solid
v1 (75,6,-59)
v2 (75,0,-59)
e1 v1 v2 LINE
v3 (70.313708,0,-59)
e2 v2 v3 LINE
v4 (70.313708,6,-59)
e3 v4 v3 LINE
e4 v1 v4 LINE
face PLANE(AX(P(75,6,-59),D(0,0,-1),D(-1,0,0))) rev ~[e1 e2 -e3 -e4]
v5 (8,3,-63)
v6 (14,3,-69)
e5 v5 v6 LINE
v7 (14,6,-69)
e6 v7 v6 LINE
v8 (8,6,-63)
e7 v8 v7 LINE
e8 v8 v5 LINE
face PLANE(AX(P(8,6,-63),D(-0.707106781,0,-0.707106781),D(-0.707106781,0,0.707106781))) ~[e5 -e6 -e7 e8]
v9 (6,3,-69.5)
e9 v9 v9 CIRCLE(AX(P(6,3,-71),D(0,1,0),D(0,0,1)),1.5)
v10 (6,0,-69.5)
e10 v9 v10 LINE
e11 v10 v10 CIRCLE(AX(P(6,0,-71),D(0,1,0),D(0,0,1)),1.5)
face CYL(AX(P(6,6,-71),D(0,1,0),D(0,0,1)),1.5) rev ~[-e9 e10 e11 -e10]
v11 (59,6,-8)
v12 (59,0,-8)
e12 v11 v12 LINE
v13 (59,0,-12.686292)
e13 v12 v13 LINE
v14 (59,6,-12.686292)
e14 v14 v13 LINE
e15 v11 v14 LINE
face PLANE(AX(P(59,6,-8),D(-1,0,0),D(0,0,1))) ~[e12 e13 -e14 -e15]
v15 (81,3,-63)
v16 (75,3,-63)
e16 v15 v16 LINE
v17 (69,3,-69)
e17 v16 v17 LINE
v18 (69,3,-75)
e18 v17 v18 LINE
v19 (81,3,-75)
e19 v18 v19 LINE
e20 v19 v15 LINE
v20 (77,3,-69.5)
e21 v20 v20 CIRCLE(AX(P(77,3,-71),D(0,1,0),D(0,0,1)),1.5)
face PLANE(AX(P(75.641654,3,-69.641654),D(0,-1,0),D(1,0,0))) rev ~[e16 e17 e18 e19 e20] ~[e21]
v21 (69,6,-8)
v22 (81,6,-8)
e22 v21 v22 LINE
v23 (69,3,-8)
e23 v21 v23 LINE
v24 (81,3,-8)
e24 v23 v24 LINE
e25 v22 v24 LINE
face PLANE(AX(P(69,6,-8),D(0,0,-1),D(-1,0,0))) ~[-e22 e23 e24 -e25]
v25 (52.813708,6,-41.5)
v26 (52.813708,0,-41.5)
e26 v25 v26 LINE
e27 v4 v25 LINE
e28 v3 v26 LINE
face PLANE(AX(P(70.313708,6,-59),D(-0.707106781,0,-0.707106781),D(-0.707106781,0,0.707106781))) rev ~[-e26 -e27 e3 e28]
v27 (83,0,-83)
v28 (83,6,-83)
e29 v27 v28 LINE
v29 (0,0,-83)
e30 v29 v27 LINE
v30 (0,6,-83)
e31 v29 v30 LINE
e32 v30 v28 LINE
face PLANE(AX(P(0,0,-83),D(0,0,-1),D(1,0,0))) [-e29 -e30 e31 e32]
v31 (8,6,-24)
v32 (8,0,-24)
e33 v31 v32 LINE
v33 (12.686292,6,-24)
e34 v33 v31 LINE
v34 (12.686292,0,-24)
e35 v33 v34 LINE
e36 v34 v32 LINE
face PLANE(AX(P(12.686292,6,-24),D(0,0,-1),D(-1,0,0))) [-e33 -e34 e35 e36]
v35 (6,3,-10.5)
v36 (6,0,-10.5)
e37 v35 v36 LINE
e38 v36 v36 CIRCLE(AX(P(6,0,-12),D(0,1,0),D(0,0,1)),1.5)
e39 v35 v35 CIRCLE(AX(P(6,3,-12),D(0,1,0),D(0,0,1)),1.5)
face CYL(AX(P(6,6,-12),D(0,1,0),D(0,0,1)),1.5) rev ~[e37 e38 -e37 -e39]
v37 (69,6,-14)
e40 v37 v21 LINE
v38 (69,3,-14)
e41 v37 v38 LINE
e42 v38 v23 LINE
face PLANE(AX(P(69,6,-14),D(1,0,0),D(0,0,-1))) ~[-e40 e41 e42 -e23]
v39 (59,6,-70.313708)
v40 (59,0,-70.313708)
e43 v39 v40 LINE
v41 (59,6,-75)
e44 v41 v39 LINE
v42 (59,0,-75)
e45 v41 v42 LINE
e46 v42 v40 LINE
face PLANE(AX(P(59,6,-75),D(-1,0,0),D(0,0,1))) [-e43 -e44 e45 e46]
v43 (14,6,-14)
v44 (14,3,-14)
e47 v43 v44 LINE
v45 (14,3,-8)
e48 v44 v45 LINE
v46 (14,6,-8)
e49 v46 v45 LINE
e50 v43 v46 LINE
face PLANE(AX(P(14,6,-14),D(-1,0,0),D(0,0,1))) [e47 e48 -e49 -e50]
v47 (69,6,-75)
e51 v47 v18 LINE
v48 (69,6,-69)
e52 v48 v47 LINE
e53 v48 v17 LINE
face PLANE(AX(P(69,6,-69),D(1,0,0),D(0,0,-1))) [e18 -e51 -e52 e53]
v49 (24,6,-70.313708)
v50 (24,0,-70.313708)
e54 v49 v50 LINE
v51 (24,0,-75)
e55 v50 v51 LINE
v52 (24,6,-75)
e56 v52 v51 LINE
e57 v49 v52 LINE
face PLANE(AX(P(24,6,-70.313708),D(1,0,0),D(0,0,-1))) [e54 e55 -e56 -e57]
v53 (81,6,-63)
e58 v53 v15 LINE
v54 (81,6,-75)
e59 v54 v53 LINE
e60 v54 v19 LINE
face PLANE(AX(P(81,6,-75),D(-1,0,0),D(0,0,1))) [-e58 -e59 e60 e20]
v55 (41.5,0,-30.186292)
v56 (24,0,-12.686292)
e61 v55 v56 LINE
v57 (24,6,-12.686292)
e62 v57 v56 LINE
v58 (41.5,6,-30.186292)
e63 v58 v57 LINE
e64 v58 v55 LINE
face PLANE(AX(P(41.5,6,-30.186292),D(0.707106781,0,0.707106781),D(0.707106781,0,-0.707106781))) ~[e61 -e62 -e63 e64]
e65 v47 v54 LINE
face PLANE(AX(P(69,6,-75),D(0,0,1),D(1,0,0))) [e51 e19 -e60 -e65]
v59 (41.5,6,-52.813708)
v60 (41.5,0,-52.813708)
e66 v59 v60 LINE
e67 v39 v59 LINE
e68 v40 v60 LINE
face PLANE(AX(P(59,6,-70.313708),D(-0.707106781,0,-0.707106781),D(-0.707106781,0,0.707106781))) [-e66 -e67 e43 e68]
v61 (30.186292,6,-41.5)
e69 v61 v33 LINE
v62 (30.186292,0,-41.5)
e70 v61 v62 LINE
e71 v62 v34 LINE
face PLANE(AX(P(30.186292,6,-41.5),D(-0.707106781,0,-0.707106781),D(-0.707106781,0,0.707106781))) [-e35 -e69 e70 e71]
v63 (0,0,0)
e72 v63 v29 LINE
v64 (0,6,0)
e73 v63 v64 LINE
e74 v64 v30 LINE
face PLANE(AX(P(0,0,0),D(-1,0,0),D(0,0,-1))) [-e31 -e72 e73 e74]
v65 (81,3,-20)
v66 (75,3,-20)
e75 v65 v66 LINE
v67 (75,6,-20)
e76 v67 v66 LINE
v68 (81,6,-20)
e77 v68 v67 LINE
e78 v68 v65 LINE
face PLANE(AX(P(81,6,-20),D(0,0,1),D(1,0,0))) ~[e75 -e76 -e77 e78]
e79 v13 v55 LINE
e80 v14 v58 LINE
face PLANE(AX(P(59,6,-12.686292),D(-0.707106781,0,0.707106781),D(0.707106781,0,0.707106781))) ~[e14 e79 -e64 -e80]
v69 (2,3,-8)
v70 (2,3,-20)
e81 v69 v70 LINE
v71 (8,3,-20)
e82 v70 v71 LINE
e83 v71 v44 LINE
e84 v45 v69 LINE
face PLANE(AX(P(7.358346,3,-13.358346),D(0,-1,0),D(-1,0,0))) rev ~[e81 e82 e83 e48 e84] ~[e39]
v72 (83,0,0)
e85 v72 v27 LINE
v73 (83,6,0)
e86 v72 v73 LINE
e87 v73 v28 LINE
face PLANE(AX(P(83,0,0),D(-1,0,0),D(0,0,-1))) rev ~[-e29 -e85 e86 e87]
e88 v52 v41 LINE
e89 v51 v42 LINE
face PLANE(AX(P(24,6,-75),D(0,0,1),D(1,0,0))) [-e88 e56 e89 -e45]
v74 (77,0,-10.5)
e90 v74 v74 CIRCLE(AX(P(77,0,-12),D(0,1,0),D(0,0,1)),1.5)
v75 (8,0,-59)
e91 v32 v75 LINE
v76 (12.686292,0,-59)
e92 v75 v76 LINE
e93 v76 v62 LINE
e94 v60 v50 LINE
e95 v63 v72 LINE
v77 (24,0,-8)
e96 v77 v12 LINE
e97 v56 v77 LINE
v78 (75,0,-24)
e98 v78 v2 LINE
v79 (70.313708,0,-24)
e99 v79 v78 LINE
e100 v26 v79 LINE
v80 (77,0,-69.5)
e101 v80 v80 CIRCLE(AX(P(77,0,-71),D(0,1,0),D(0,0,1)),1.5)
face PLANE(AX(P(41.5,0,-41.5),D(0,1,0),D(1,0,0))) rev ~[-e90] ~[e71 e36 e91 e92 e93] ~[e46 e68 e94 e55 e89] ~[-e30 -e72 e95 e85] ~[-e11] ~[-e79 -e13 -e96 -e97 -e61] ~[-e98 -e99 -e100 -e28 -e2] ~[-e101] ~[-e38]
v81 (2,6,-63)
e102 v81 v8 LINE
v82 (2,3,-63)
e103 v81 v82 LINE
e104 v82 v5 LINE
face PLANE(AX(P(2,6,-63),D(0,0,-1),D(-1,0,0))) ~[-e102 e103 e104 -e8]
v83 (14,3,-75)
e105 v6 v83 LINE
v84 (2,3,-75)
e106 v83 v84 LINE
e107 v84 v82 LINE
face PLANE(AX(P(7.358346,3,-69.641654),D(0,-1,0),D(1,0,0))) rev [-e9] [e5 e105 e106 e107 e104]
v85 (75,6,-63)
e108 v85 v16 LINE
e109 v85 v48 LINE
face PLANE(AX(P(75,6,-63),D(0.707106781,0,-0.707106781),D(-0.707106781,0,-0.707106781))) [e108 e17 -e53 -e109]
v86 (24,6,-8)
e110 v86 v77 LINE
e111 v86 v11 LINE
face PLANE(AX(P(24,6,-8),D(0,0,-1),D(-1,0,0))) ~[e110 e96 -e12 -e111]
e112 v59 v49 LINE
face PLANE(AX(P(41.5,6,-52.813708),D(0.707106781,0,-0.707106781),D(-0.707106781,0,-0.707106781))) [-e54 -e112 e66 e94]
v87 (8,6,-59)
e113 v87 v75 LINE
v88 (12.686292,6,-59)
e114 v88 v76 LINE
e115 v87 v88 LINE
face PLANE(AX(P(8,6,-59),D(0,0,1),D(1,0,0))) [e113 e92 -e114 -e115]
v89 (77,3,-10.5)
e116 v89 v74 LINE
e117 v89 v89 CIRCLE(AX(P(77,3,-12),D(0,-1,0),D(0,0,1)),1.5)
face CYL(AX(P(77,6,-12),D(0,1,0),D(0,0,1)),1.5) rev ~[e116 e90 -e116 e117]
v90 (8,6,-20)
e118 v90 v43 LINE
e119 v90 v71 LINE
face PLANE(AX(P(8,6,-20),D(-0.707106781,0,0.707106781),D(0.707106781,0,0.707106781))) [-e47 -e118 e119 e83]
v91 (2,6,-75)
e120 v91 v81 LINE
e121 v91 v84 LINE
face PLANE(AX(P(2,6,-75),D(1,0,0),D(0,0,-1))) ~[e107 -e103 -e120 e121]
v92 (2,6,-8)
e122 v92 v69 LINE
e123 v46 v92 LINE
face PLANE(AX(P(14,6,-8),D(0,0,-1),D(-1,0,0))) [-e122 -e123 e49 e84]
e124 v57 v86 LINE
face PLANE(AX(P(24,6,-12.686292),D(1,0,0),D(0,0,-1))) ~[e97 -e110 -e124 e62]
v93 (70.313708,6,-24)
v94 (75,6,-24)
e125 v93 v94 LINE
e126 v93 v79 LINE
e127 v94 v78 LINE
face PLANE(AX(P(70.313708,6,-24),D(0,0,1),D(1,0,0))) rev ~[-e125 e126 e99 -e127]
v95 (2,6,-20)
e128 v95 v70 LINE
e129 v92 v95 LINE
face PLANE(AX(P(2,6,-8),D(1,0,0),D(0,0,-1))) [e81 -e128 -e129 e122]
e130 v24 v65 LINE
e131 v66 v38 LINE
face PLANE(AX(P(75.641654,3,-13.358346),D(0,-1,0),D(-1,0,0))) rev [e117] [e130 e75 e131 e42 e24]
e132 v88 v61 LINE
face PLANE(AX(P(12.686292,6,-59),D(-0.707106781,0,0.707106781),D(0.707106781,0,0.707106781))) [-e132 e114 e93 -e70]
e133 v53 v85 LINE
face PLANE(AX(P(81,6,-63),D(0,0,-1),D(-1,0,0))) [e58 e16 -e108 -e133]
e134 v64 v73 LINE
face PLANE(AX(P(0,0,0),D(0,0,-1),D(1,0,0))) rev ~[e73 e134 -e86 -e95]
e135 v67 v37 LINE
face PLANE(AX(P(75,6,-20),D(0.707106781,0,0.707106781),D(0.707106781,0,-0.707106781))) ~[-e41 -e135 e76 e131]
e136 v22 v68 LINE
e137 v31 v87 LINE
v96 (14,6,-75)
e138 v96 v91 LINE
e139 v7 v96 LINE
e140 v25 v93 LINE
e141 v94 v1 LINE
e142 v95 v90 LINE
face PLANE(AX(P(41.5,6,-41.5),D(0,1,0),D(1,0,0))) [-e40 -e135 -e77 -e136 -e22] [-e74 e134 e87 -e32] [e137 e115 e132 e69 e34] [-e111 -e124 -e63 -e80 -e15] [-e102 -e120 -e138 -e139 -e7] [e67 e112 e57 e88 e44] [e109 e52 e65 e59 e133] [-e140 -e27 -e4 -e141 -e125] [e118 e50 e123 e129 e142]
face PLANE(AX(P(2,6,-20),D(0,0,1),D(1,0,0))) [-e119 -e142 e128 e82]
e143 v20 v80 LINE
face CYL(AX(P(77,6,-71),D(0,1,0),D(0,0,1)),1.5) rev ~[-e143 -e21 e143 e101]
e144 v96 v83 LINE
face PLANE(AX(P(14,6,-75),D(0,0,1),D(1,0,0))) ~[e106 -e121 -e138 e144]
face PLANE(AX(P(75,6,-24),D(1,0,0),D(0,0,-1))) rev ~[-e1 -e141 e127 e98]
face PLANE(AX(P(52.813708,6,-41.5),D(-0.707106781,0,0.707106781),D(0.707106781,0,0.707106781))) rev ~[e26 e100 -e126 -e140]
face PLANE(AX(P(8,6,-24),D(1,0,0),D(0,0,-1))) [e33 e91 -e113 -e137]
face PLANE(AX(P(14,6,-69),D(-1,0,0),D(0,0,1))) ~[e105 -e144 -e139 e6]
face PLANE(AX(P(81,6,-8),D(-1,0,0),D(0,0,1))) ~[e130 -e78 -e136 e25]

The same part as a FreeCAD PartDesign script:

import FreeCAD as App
import Part
import Sketcher
from FreeCAD import Vector
Q = App.Units.Quantity

doc = App.newDocument("Part")
body = doc.addObject("PartDesign::Body", "Body")

# Sketch on XZ plane
sketch1 = body.newObject("Sketcher::SketchObject", "Sketch")
sketch1.AttachmentSupport = (doc.getObject("XZ_Plane"), [""])
sketch1.MapMode = "FlatFace"
sketch1.addGeometry([
    Part.LineSegment(Vector(0, -83, 0), Vector(0, 0, 0)),
    Part.LineSegment(Vector(0, 0, 0), Vector(83, 0, 0)),
    Part.LineSegment(Vector(83, 0, 0), Vector(83, -83, 0)),
    Part.LineSegment(Vector(83, -83, 0), Vector(0, -83, 0)),
], False)
sketch1.addConstraint([
    Sketcher.Constraint("Coincident", 0, 2, 1, 1),
    Sketcher.Constraint("Coincident", 1, 2, 2, 1),
    Sketcher.Constraint("Coincident", 2, 2, 3, 1),
    Sketcher.Constraint("Coincident", 3, 2, 0, 1),
    Sketcher.Constraint("Vertical", 0),
    Sketcher.Constraint("Horizontal", 1),
    Sketcher.Constraint("Vertical", 2),
    Sketcher.Constraint("Horizontal", 3),
    Sketcher.Constraint("Coincident", 0, 2, -1, 1),
    Sketcher.Constraint("Equal", 3, 0),
    Sketcher.Constraint("DistanceX", 1, 1, 1, 2, Q("83 mm")),
])
pad1 = body.newObject("PartDesign::Pad", "Pad")
pad1.Profile = sketch1
pad1.Length = 6
pad1.Reversed = True

# Sketch on XZ plane
sketch2 = body.newObject("Sketcher::SketchObject", "Sketch001")
sketch2.AttachmentSupport = (doc.getObject("XZ_Plane"), [""])
sketch2.MapMode = "FlatFace"
sketch2.AttachmentOffset = App.Placement(Vector(0, 0, -6), App.Rotation())
sketch2.addGeometry([
    Part.Circle(Vector(6, -71, 0), Vector(0, 0, 1), 1.5),
    Part.Circle(Vector(6, -12, 0), Vector(0, 0, 1), 1.5),
    Part.Circle(Vector(77, -12, 0), Vector(0, 0, 1), 1.5),
    Part.Circle(Vector(77, -71, 0), Vector(0, 0, 1), 1.5),
], False)
sketch2.addConstraint([
    Sketcher.Constraint("Equal", 0, 1),
    Sketcher.Constraint("Equal", 1, 2),
    Sketcher.Constraint("Equal", 2, 3),
    Sketcher.Constraint("Horizontal", 1, 3, 2, 3),
    Sketcher.Constraint("Horizontal", 0, 3, 3, 3),
    Sketcher.Constraint("Vertical", 0, 3, 1, 3),
    Sketcher.Constraint("Vertical", 2, 3, 3, 3),
    Sketcher.Constraint("Diameter", 0, Q("3 mm")),
    Sketcher.Constraint("DistanceX", -1, 1, 0, 3, Q("6 mm")),
    Sketcher.Constraint("DistanceY", 0, 3, -1, 1, Q("71 mm")),
    Sketcher.Constraint("DistanceY", 1, 3, -1, 1, Q("12 mm")),
    Sketcher.Constraint("DistanceX", -1, 1, 2, 3, Q("77 mm")),
])
pocket1 = body.newObject("PartDesign::Pocket", "Pocket")
pocket1.Profile = sketch2
pocket1.Type = "ThroughAll"
pocket1.Reversed = True

# Sketch on XZ plane
sketch3 = body.newObject("Sketcher::SketchObject", "Sketch002")
sketch3.AttachmentSupport = (doc.getObject("XZ_Plane"), [""])
sketch3.MapMode = "FlatFace"
sketch3.AttachmentOffset = App.Placement(Vector(0, 0, -6), App.Rotation())
sketch3.addGeometry([
    Part.LineSegment(Vector(59, -75, 0), Vector(24, -75, 0)),  # 0
    Part.LineSegment(Vector(24, -75, 0), Vector(24, -70.3, 0)),  # 1
    Part.LineSegment(Vector(24, -70.3, 0), Vector(41.5, -52.8, 0)),  # 2
    Part.LineSegment(Vector(41.5, -52.8, 0), Vector(59, -70.3, 0)),  # 3
    Part.LineSegment(Vector(59, -70.3, 0), Vector(59, -75, 0)),  # 4
], False)
sketch3.addConstraint([
    Sketcher.Constraint("Coincident", 0, 2, 1, 1),
    Sketcher.Constraint("Coincident", 1, 2, 2, 1),
    Sketcher.Constraint("Coincident", 2, 2, 3, 1),
    Sketcher.Constraint("Coincident", 3, 2, 4, 1),
    Sketcher.Constraint("Coincident", 4, 2, 0, 1),
    Sketcher.Constraint("Horizontal", 0),
    Sketcher.Constraint("Vertical", 1),
    Sketcher.Constraint("Vertical", 4),
    Sketcher.Constraint("Perpendicular", 2, 3),
    Sketcher.Constraint("Horizontal", 1, 2, 3, 2),
    Sketcher.Constraint("Equal", 2, 3),
    Sketcher.Constraint("DistanceX", 0, 2, 0, 1, Q("35 mm")),
    Sketcher.Constraint("DistanceX", -1, 1, 0, 2, Q("24 mm")),
    Sketcher.Constraint("DistanceY", 0, 2, -1, 1, Q("75 mm")),
    Sketcher.Constraint("DistanceY", 1, 1, 1, 2, Q("4.686292 mm")),
])
pocket2 = body.newObject("PartDesign::Pocket", "Pocket001")
pocket2.Profile = sketch3
pocket2.Type = "ThroughAll"
pocket2.Reversed = True
doc.recompute()

datumplane = body.newObject("PartDesign::Plane", "DatumPlane")
datumplane.AttachmentSupport = (doc.getObject("XY_Plane"), [""])
datumplane.MapMode = "FlatFace"
datumplane.AttachmentOffset = App.Placement(Vector(0, 0, -41.5), App.Rotation())
mirrored = body.newObject("PartDesign::Mirrored", "Mirrored")
mirrored.Originals = [pocket2]
mirrored.MirrorPlane = (datumplane, [""])
body.Tip = mirrored
doc.recompute()

datumline = body.newObject("PartDesign::Line", "DatumLine")
datumline.Placement = App.Placement(Vector(41.5, 0, -41.5), App.Rotation(Vector(0, 0, 1), Vector(0, 1, 0)))
polarpattern = body.newObject("PartDesign::PolarPattern", "PolarPattern")
polarpattern.Originals = [pocket2]
polarpattern.Axis = (datumline, [""])
polarpattern.Angle = 180
polarpattern.Occurrences = 3
body.Tip = polarpattern

# Sketch on XZ plane
sketch4 = body.newObject("Sketcher::SketchObject", "Sketch003")
sketch4.AttachmentSupport = (doc.getObject("XZ_Plane"), [""])
sketch4.MapMode = "FlatFace"
sketch4.AttachmentOffset = App.Placement(Vector(0, 0, -6), App.Rotation())
sketch4.addGeometry([
    Part.LineSegment(Vector(75, -24, 0), Vector(75, -59, 0)),  # 0
    Part.LineSegment(Vector(75, -59, 0), Vector(70.3, -59, 0)),  # 1
    Part.LineSegment(Vector(70.3, -59, 0), Vector(52.8, -41.5, 0)),  # 2
    Part.LineSegment(Vector(52.8, -41.5, 0), Vector(70.3, -24, 0)),  # 3
    Part.LineSegment(Vector(70.3, -24, 0), Vector(75, -24, 0)),  # 4
], False)
sketch4.addConstraint([
    Sketcher.Constraint("Coincident", 0, 2, 1, 1),
    Sketcher.Constraint("Coincident", 1, 2, 2, 1),
    Sketcher.Constraint("Coincident", 2, 2, 3, 1),
    Sketcher.Constraint("Coincident", 3, 2, 4, 1),
    Sketcher.Constraint("Coincident", 4, 2, 0, 1),
    Sketcher.Constraint("Vertical", 0),
    Sketcher.Constraint("Horizontal", 1),
    Sketcher.Constraint("Horizontal", 4),
    Sketcher.Constraint("Perpendicular", 2, 3),
    Sketcher.Constraint("Vertical", 1, 2, 3, 2),
    Sketcher.Constraint("Equal", 2, 3),
    Sketcher.Constraint("DistanceY", 0, 2, 0, 1, Q("35 mm")),
    Sketcher.Constraint("DistanceX", -1, 1, 0, 2, Q("75 mm")),
    Sketcher.Constraint("DistanceY", 0, 2, -1, 1, Q("59 mm")),
    Sketcher.Constraint("DistanceX", 1, 2, 1, 1, Q("4.686292 mm")),
])
pocket3 = body.newObject("PartDesign::Pocket", "Pocket002")
pocket3.Profile = sketch4
pocket3.Type = "ThroughAll"
pocket3.Reversed = True

# Sketch on XZ plane
sketch5 = body.newObject("Sketcher::SketchObject", "Sketch004")
sketch5.AttachmentSupport = (doc.getObject("XZ_Plane"), [""])
sketch5.MapMode = "FlatFace"
sketch5.AttachmentOffset = App.Placement(Vector(0, 0, -6), App.Rotation())
sketch5.addGeometry([
    Part.LineSegment(Vector(59, -75, 0), Vector(24, -75, 0)),  # 0
    Part.LineSegment(Vector(24, -75, 0), Vector(24, -70.3, 0)),  # 1
    Part.LineSegment(Vector(24, -70.3, 0), Vector(41.5, -52.8, 0)),  # 2
    Part.LineSegment(Vector(41.5, -52.8, 0), Vector(59, -70.3, 0)),  # 3
    Part.LineSegment(Vector(59, -70.3, 0), Vector(59, -75, 0)),  # 4
], False)
sketch5.addConstraint([
    Sketcher.Constraint("Coincident", 0, 2, 1, 1),
    Sketcher.Constraint("Coincident", 1, 2, 2, 1),
    Sketcher.Constraint("Coincident", 2, 2, 3, 1),
    Sketcher.Constraint("Coincident", 3, 2, 4, 1),
    Sketcher.Constraint("Coincident", 4, 2, 0, 1),
    Sketcher.Constraint("Horizontal", 0),
    Sketcher.Constraint("Vertical", 1),
    Sketcher.Constraint("Vertical", 4),
    Sketcher.Constraint("Perpendicular", 2, 3),
    Sketcher.Constraint("Horizontal", 1, 2, 3, 2),
    Sketcher.Constraint("Equal", 2, 3),
    Sketcher.Constraint("DistanceX", 0, 2, 0, 1, Q("35 mm")),
    Sketcher.Constraint("DistanceX", -1, 1, 0, 2, Q("24 mm")),
    Sketcher.Constraint("DistanceY", 0, 2, -1, 1, Q("75 mm")),
    Sketcher.Constraint("DistanceY", 1, 1, 1, 2, Q("4.686292 mm")),
])
pocket4 = body.newObject("PartDesign::Pocket", "Pocket003")
pocket4.Profile = sketch5
pocket4.Type = "ThroughAll"
pocket4.Reversed = True

# Sketch on XZ plane
sketch6 = body.newObject("Sketcher::SketchObject", "Sketch005")
sketch6.AttachmentSupport = (doc.getObject("XZ_Plane"), [""])
sketch6.MapMode = "FlatFace"
sketch6.AttachmentOffset = App.Placement(Vector(0, 0, -6), App.Rotation())
sketch6.addGeometry([
    Part.LineSegment(Vector(14, -8, 0), Vector(14, -14, 0)),  # 0
    Part.LineSegment(Vector(14, -14, 0), Vector(8, -20, 0)),  # 1
    Part.LineSegment(Vector(8, -20, 0), Vector(2, -20, 0)),  # 2
    Part.LineSegment(Vector(2, -20, 0), Vector(2, -8, 0)),  # 3
    Part.LineSegment(Vector(2, -8, 0), Vector(14, -8, 0)),  # 4
    Part.Circle(Vector(6, -12, 0), Vector(0, 0, 1), 1.5),  # 5
], False)
sketch6.addConstraint([
    Sketcher.Constraint("Coincident", 0, 2, 1, 1),
    Sketcher.Constraint("Coincident", 1, 2, 2, 1),
    Sketcher.Constraint("Coincident", 2, 2, 3, 1),
    Sketcher.Constraint("Coincident", 3, 2, 4, 1),
    Sketcher.Constraint("Coincident", 4, 2, 0, 1),
    Sketcher.Constraint("Vertical", 0),
    Sketcher.Constraint("Horizontal", 2),
    Sketcher.Constraint("Vertical", 3),
    Sketcher.Constraint("Horizontal", 4),
    Sketcher.Constraint("Equal", 2, 0),
    Sketcher.Constraint("Equal", 4, 3),
    Sketcher.Constraint("Diameter", 5, Q("3 mm")),
    Sketcher.Constraint("DistanceX", 2, 2, 2, 1, Q("6 mm")),
    Sketcher.Constraint("DistanceX", 4, 1, 4, 2, Q("12 mm")),
    Sketcher.Constraint("DistanceX", -1, 1, 5, 3, Q("6 mm")),
    Sketcher.Constraint("DistanceY", 5, 3, -1, 1, Q("12 mm")),
    Sketcher.Constraint("DistanceX", -1, 1, 0, 2, Q("14 mm")),
    Sketcher.Constraint("DistanceY", 0, 2, -1, 1, Q("14 mm")),
])
pocket5 = body.newObject("PartDesign::Pocket", "Pocket004")
pocket5.Profile = sketch6
pocket5.Length = 3
pocket5.Reversed = True
doc.recompute()

datumplane2 = body.newObject("PartDesign::Plane", "DatumPlane001")
datumplane2.AttachmentSupport = (doc.getObject("XY_Plane"), [""])
datumplane2.MapMode = "FlatFace"
datumplane2.AttachmentOffset = App.Placement(Vector(0, 0, -41.5), App.Rotation())
mirrored2 = body.newObject("PartDesign::Mirrored", "Mirrored001")
mirrored2.Originals = [pocket5]
mirrored2.MirrorPlane = (datumplane2, [""])
body.Tip = mirrored2
doc.recompute()

datumplane3 = body.newObject("PartDesign::Plane", "DatumPlane002")
datumplane3.AttachmentSupport = (doc.getObject("YZ_Plane"), [""])
datumplane3.MapMode = "FlatFace"
datumplane3.AttachmentOffset = App.Placement(Vector(0, 0, 41.5), App.Rotation())
mirrored3 = body.newObject("PartDesign::Mirrored", "Mirrored002")
mirrored3.Originals = [pocket5]
mirrored3.MirrorPlane = (datumplane3, [""])
body.Tip = mirrored3

# Sketch on XZ plane
sketch7 = body.newObject("Sketcher::SketchObject", "Sketch006")
sketch7.AttachmentSupport = (doc.getObject("XZ_Plane"), [""])
sketch7.MapMode = "FlatFace"
sketch7.AttachmentOffset = App.Placement(Vector(0, 0, -6), App.Rotation())
sketch7.addGeometry([
    Part.LineSegment(Vector(69, -75, 0), Vector(69, -69, 0)),  # 0
    Part.LineSegment(Vector(69, -69, 0), Vector(75, -63, 0)),  # 1
    Part.LineSegment(Vector(75, -63, 0), Vector(81, -63, 0)),  # 2
    Part.LineSegment(Vector(81, -63, 0), Vector(81, -75, 0)),  # 3
    Part.LineSegment(Vector(81, -75, 0), Vector(69, -75, 0)),  # 4
    Part.Circle(Vector(77, -71, 0), Vector(0, 0, 1), 1.5),  # 5
], False)
sketch7.addConstraint([
    Sketcher.Constraint("Coincident", 0, 2, 1, 1),
    Sketcher.Constraint("Coincident", 1, 2, 2, 1),
    Sketcher.Constraint("Coincident", 2, 2, 3, 1),
    Sketcher.Constraint("Coincident", 3, 2, 4, 1),
    Sketcher.Constraint("Coincident", 4, 2, 0, 1),
    Sketcher.Constraint("Vertical", 0),
    Sketcher.Constraint("Horizontal", 2),
    Sketcher.Constraint("Vertical", 3),
    Sketcher.Constraint("Horizontal", 4),
    Sketcher.Constraint("Equal", 2, 0),
    Sketcher.Constraint("Equal", 4, 3),
    Sketcher.Constraint("Diameter", 5, Q("3 mm")),
    Sketcher.Constraint("DistanceX", 2, 1, 2, 2, Q("6 mm")),
    Sketcher.Constraint("DistanceX", 4, 2, 4, 1, Q("12 mm")),
    Sketcher.Constraint("DistanceX", -1, 1, 5, 3, Q("77 mm")),
    Sketcher.Constraint("DistanceY", 5, 3, -1, 1, Q("71 mm")),
    Sketcher.Constraint("DistanceX", -1, 1, 0, 2, Q("69 mm")),
    Sketcher.Constraint("DistanceY", 0, 2, -1, 1, Q("69 mm")),
])
pocket6 = body.newObject("PartDesign::Pocket", "Pocket005")
pocket6.Profile = sketch7
pocket6.Length = 3
pocket6.Reversed = True

doc.recompute()
